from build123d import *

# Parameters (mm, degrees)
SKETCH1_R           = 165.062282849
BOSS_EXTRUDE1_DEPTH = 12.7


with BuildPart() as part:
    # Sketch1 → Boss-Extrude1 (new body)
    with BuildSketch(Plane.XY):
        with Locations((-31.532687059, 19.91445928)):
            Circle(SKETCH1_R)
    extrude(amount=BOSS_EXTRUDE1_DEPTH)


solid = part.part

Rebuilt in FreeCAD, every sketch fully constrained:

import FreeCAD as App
import Part
import Sketcher
from FreeCAD import Vector

doc = App.newDocument("Part")
params = doc.addObject("Spreadsheet::Sheet", "Params")
for row, (alias, value) in enumerate([
    ("pad1_length", "0.5 in"),
], start=1):
    params.set(f"A{row}", alias)
    params.set(f"B{row}", "=" + value)
    params.setAlias(f"B{row}", alias)

body = doc.addObject("PartDesign::Body", "Body")

# Sketch on XY plane
sketch1 = doc.addObject("Sketcher::SketchObject", "Sketch")
body.addObject(sketch1)
sketch1.AttachmentSupport = (doc.XY_Plane, [""])
sketch1.MapMode = "FlatFace"
sketch1.addGeometry(Part.Circle(Vector(-32, 20, 0), Vector(0, 0, 1), 165), False)
sketch1.addConstraint(Sketcher.Constraint("Diameter", 0, 330.124566))
sketch1.addConstraint(Sketcher.Constraint("DistanceY", -1, 1, 0, 3, 19.914459))
sketch1.addConstraint(Sketcher.Constraint("DistanceX", 0, 3, -1, 1, 31.532687))
pad1 = doc.addObject("PartDesign::Pad", "Pad")
body.addObject(pad1)
pad1.Profile = sketch1
pad1.setExpression("Length", "Params.pad1_length")

doc.recompute()
